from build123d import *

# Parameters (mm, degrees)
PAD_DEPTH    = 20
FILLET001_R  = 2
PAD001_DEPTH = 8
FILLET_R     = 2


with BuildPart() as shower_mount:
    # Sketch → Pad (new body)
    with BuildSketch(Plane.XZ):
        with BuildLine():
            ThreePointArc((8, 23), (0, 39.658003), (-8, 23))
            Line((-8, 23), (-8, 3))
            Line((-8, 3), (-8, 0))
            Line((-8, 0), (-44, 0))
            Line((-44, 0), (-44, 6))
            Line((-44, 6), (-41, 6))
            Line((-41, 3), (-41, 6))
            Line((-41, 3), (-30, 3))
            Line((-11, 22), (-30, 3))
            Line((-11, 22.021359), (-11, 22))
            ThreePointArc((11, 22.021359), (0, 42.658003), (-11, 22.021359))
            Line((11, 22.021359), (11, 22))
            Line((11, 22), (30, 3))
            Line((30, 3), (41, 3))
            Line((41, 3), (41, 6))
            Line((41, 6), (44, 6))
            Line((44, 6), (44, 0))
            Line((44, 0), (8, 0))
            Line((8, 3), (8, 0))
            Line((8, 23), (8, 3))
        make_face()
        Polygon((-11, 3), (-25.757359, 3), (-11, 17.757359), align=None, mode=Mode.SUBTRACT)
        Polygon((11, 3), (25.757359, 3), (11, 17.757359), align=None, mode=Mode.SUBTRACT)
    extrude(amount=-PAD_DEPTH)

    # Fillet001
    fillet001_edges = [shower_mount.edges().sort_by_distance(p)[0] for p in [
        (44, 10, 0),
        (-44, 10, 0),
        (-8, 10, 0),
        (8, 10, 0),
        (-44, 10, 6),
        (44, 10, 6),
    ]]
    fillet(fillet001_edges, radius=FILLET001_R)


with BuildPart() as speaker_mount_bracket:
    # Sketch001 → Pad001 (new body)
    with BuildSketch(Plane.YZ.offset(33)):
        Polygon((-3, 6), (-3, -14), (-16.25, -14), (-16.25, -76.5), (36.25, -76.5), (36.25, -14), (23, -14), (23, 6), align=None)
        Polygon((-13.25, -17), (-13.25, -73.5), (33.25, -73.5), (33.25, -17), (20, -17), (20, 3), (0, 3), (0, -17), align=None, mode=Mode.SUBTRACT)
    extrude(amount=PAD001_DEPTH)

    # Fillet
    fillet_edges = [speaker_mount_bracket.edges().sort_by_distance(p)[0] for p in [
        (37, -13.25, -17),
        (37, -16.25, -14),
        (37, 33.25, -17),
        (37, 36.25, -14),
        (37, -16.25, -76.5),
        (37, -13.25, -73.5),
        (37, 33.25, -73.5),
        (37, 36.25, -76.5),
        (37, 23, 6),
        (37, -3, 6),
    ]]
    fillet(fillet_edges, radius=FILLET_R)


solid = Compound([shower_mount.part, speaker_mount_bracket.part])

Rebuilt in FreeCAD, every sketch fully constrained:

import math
import FreeCAD as App
import Part
import Sketcher

V = App.Vector
Q = App.Units.Quantity


def edges_at(feature, points):
    """Names of the edges that pass closest to the given points."""
    edges = feature.Shape.Edges
    near = lambda p: min(range(len(edges)), key=lambda i: edges[i].distToShape(Part.Vertex(*p))[0])
    return sorted({f"Edge{near(p) + 1}" for p in points})


def add_polygon(sketch, points):
    """Adds a closed chain of lines whose ends are joined by coincident constraints."""
    first, n = sketch.GeometryCount, len(points)
    for a, b in zip(points, points[1:] + points[:1]):
        sketch.addGeometry(Part.LineSegment(App.Vector(*a, 0), App.Vector(*b, 0)), False)
    for i in range(n):
        sketch.addConstraint(Sketcher.Constraint("Coincident", first + i, 2, first + (i + 1) % n, 1))

doc = App.newDocument("Part")
body = doc.addObject("PartDesign::Body", "Body")

sketch1 = body.newObject("Sketcher::SketchObject", "Sketch")
sketch1.AttachmentSupport = (doc.getObject("XZ_Plane"), [""])
sketch1.MapMode = "FlatFace"
sketch1.addGeometry(Part.ArcOfCircle(Part.Circle(V(0, 29.408, 0), V(0, 0, 1), 10.25), math.radians(-39), math.radians(219)), False)
sketch1.addGeometry(Part.LineSegment(V(8, 23, 0), V(8, 0, 0)), False)
sketch1.addGeometry(Part.LineSegment(V(8, 0, 0), V(44, 0, 0)), False)
sketch1.addGeometry(Part.LineSegment(V(44, 0, 0), V(44, 6, 0)), False)
sketch1.addGeometry(Part.LineSegment(V(44, 6, 0), V(41, 6, 0)), False)
sketch1.addGeometry(Part.LineSegment(V(41, 6, 0), V(41, 3, 0)), False)
sketch1.addGeometry(Part.LineSegment(V(41, 3, 0), V(30, 3, 0)), False)
sketch1.addGeometry(Part.LineSegment(V(30, 3, 0), V(11, 22, 0)), False)
sketch1.addGeometry(Part.LineSegment(V(11, 22, 0), V(11, 22.021, 0)), False)
sketch1.addGeometry(Part.ArcOfCircle(Part.Circle(V(0, 29.408, 0), V(0, 0, 1), 13.25), math.radians(-34), math.radians(214)), False)
sketch1.addGeometry(Part.LineSegment(V(-11, 22.021, 0), V(-11, 22, 0)), False)
sketch1.addGeometry(Part.LineSegment(V(-11, 22, 0), V(-30, 3, 0)), False)
sketch1.addGeometry(Part.LineSegment(V(-30, 3, 0), V(-41, 3, 0)), False)
sketch1.addGeometry(Part.LineSegment(V(-41, 3, 0), V(-41, 6, 0)), False)
sketch1.addGeometry(Part.LineSegment(V(-41, 6, 0), V(-44, 6, 0)), False)
sketch1.addGeometry(Part.LineSegment(V(-44, 6, 0), V(-44, 0, 0)), False)
sketch1.addGeometry(Part.LineSegment(V(-44, 0, 0), V(-8, 0, 0)), False)
sketch1.addGeometry(Part.LineSegment(V(-8, 0, 0), V(-8, 23, 0)), False)
add_polygon(sketch1, [(11, 3), (11, 17.757), (25.757, 3)])
add_polygon(sketch1, [(-11, 3), (-25.757, 3), (-11, 17.757)])
sketch1.addConstraint([
    Sketcher.Constraint("Coincident", 0, 1, 1, 1),
    Sketcher.Constraint("Coincident", 1, 2, 2, 1),
    Sketcher.Constraint("Coincident", 2, 2, 3, 1),
    Sketcher.Constraint("Coincident", 3, 2, 4, 1),
    Sketcher.Constraint("Coincident", 4, 2, 5, 1),
    Sketcher.Constraint("Coincident", 5, 2, 6, 1),
    Sketcher.Constraint("Coincident", 6, 2, 7, 1),
    Sketcher.Constraint("Coincident", 7, 2, 8, 1),
    Sketcher.Constraint("Coincident", 8, 2, 9, 1),
    Sketcher.Constraint("Coincident", 9, 2, 10, 1),
    Sketcher.Constraint("Coincident", 10, 2, 11, 1),
    Sketcher.Constraint("Coincident", 11, 2, 12, 1),
    Sketcher.Constraint("Coincident", 12, 2, 13, 1),
    Sketcher.Constraint("Coincident", 13, 2, 14, 1),
    Sketcher.Constraint("Coincident", 14, 2, 15, 1),
    Sketcher.Constraint("Coincident", 15, 2, 16, 1),
    Sketcher.Constraint("Coincident", 16, 2, 17, 1),
    Sketcher.Constraint("Coincident", 17, 2, 0, 2),
    Sketcher.Constraint("Vertical", 1),
    Sketcher.Constraint("Horizontal", 2),
    Sketcher.Constraint("Vertical", 3),
    Sketcher.Constraint("Horizontal", 4),
    Sketcher.Constraint("Vertical", 5),
    Sketcher.Constraint("Horizontal", 6),
    Sketcher.Constraint("Vertical", 8),
    Sketcher.Constraint("Vertical", 10),
    Sketcher.Constraint("Horizontal", 12),
    Sketcher.Constraint("Vertical", 13),
    Sketcher.Constraint("Horizontal", 14),
    Sketcher.Constraint("Vertical", 15),
    Sketcher.Constraint("Horizontal", 16),
    Sketcher.Constraint("Vertical", 17),
    Sketcher.Constraint("Vertical", 18),
    Sketcher.Constraint("Horizontal", 20),
    Sketcher.Constraint("Horizontal", 21),
    Sketcher.Constraint("Vertical", 23),
    Sketcher.Constraint("Coincident", 9, 3, 0, 3),
    Sketcher.Constraint("Symmetric", 2, 2, 15, 2, -1, 1),
    Sketcher.Constraint("Symmetric", 8, 2, 9, 2, -2),
    Sketcher.Constraint("Symmetric", 6, 2, 11, 2, -2),
    Sketcher.Constraint("Symmetric", 4, 2, 13, 2, -2),
    Sketcher.Constraint("Symmetric", 1, 2, 16, 2, -2),
    Sketcher.Constraint("Symmetric", 19, 2, 21, 2, -2),
    Sketcher.Constraint("Symmetric", 18, 2, 22, 2, -2),
    Sketcher.Constraint("Perpendicular", 7, 11),
    Sketcher.Constraint("Perpendicular", 11, 19),
    Sketcher.Constraint("Perpendicular", 19, 22),
    Sketcher.Constraint("Horizontal", 12, 2, 19, 2),
    Sketcher.Constraint("Vertical", 8, 2, 18, 2),
    Sketcher.Constraint("Equal", 14, 5),
    Sketcher.Constraint("DistanceX", 2, 1, 2, 2, Q("36 mm")),
    Sketcher.Constraint("DistanceX", 4, 2, 4, 1, Q("3 mm")),
    Sketcher.Constraint("DistanceX", 6, 2, 6, 1, Q("11 mm")),
    Sketcher.Constraint("DistanceY", 1, 2, 1, 1, Q("23 mm")),
    Sketcher.Constraint("DistanceY", 3, 1, 3, 2, Q("6 mm")),
    Sketcher.Constraint("Radius", 0, Q("10.25 mm")),
    Sketcher.Constraint("Radius", 9, Q("13.25 mm")),
    Sketcher.Constraint("DistanceX", -1, 1, 0, 1, Q("8 mm")),
    Sketcher.Constraint("DistanceX", -1, 1, 7, 2, Q("11 mm")),
    Sketcher.Constraint("DistanceY", 18, 2, 8, 2, Q("4.264 mm")),
])
pad1 = body.newObject("PartDesign::Pad", "Pad")
pad1.Profile = sketch1
pad1.Length = 20
pad1.Reversed = True
doc.recompute()

fillet = body.newObject("PartDesign::Fillet", "Fillet")
fillet.Base = (pad1, edges_at(pad1, [
    (44, 10, 0),
    (-44, 10, 0),
    (-8, 10, 0),
    (8, 10, 0),
    (-44, 10, 6),
    (44, 10, 6),
]))
fillet.Radius = 2
body2 = doc.addObject("PartDesign::Body", "Body001")

sketch2 = body2.newObject("Sketcher::SketchObject", "Sketch001")
sketch2.AttachmentSupport = (doc.getObject("YZ_Plane001"), [""])
sketch2.MapMode = "FlatFace"
sketch2.AttachmentOffset = App.Placement(V(0, 0, 33), App.Rotation())
add_polygon(sketch2, [(-3, 6), (-3, -14), (-16, -14), (-16, -76), (36, -76), (36, -14), (23, -14), (23, 6)])
add_polygon(sketch2, [(-13, -74), (-13, -17), (0, -17), (0, 3), (20, 3), (20, -17), (33, -17), (33, -74)])
sketch2.addConstraint([
    Sketcher.Constraint("Vertical", 0),
    Sketcher.Constraint("Horizontal", 1),
    Sketcher.Constraint("Vertical", 2),
    Sketcher.Constraint("Horizontal", 3),
    Sketcher.Constraint("Vertical", 4),
    Sketcher.Constraint("Horizontal", 5),
    Sketcher.Constraint("Vertical", 6),
    Sketcher.Constraint("Horizontal", 7),
    Sketcher.Constraint("Vertical", 8),
    Sketcher.Constraint("Horizontal", 9),
    Sketcher.Constraint("Vertical", 10),
    Sketcher.Constraint("Horizontal", 11),
    Sketcher.Constraint("Vertical", 12),
    Sketcher.Constraint("Horizontal", 13),
    Sketcher.Constraint("Vertical", 14),
    Sketcher.Constraint("Horizontal", 15),
    Sketcher.Constraint("PointOnObject", 9, 2, -2),
    Sketcher.Constraint("Horizontal", 1, 2, 4, 2),
    Sketcher.Constraint("Horizontal", 9, 2, 12, 2),
    Sketcher.Constraint("Equal", 1, 5),
    Sketcher.Constraint("Equal", 5, 9),
    Sketcher.Constraint("Equal", 9, 13),
    Sketcher.Constraint("Equal", 11, 0),
    Sketcher.Constraint("Equal", 6, 10),
    Sketcher.Constraint("DistanceX", 7, 2, 7, 1, Q("26 mm")),
    Sketcher.Constraint("DistanceX", 11, 1, 11, 2, Q("20 mm")),
    Sketcher.Constraint("DistanceX", 3, 1, 3, 2, Q("52.5 mm")),
    Sketcher.Constraint("DistanceY", 2, 2, 2, 1, Q("62.5 mm")),
    Sketcher.Constraint("DistanceY", 8, 1, 8, 2, Q("56.5 mm")),
    Sketcher.Constraint("DistanceX", 0, 2, -1, 1, Q("3 mm")),
    Sketcher.Constraint("DistanceY", 0, 2, -1, 1, Q("14 mm")),
    Sketcher.Constraint("DistanceY", 8, 2, -1, 1, Q("17 mm")),
])
pad2 = body2.newObject("PartDesign::Pad", "Pad001")
pad2.Profile = sketch2
pad2.Length = 8
doc.recompute()

fillet2 = body2.newObject("PartDesign::Fillet", "Fillet001")
fillet2.Base = (pad2, edges_at(pad2, [
    (37, -13.25, -17),
    (37, -16.25, -14),
    (37, 33.25, -17),
    (37, 36.25, -14),
    (37, -16.25, -76.5),
    (37, -13.25, -73.5),
    (37, 33.25, -73.5),
    (37, 36.25, -76.5),
    (37, 23, 6),
    (37, -3, 6),
]))
fillet2.Radius = 2

doc.recompute()
